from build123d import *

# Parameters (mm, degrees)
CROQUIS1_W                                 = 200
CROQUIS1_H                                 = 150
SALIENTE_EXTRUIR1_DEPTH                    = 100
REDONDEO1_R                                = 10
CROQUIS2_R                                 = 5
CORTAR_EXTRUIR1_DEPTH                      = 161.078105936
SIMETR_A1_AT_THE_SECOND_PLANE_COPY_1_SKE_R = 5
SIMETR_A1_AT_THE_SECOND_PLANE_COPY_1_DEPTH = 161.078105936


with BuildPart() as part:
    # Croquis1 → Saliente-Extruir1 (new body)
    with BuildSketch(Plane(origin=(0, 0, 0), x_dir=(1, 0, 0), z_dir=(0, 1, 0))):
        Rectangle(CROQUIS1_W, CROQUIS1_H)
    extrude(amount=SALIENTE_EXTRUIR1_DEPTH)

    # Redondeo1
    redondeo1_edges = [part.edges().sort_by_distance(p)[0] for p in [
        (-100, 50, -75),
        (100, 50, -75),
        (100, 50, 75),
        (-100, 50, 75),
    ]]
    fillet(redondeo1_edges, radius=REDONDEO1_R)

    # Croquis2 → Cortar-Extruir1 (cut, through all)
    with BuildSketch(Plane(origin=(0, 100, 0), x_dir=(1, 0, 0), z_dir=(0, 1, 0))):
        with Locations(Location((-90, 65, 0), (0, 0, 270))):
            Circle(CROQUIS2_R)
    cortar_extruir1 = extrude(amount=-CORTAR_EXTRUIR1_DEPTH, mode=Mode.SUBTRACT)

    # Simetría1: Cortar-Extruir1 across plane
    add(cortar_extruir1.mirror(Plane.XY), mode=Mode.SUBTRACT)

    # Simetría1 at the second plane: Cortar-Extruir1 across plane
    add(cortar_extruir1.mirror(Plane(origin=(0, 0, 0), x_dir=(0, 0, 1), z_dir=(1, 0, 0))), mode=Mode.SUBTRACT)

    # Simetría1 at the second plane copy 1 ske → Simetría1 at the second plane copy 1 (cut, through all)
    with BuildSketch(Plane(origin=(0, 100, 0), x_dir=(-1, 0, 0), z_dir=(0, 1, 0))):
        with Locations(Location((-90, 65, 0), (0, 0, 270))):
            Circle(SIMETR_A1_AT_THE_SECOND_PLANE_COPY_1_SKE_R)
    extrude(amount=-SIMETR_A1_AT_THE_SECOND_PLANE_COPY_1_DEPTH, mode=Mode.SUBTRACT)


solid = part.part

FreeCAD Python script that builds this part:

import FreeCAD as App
import Part
import Sketcher

V = App.Vector


def edges_at(feature, points):
    """Names of the edges that pass closest to the given points."""
    edges = feature.Shape.Edges
    near = lambda p: min(range(len(edges)), key=lambda i: edges[i].distToShape(Part.Vertex(*p))[0])
    return sorted({f"Edge{near(p) + 1}" for p in points})


def add_polygon(sketch, points):
    """Adds a closed chain of lines whose ends are joined by coincident constraints."""
    first, n = sketch.GeometryCount, len(points)
    for a, b in zip(points, points[1:] + points[:1]):
        sketch.addGeometry(Part.LineSegment(App.Vector(*a, 0), App.Vector(*b, 0)), False)
    for i in range(n):
        sketch.addConstraint(Sketcher.Constraint("Coincident", first + i, 2, first + (i + 1) % n, 1))

doc = App.newDocument("Part")
body = doc.addObject("PartDesign::Body", "Body")

# Sketch on XZ plane
sketch1 = body.newObject("Sketcher::SketchObject", "Sketch")
sketch1.AttachmentSupport = (doc.getObject("XZ_Plane"), [""])
sketch1.MapMode = "FlatFace"
add_polygon(sketch1, [(-100, -75), (-100, 75), (100, 75), (100, -75)])  # lines 0-3
sketch1.addConstraint(Sketcher.Constraint("Vertical", 0))
sketch1.addConstraint(Sketcher.Constraint("Horizontal", 1))
sketch1.addConstraint(Sketcher.Constraint("Vertical", 2))
sketch1.addConstraint(Sketcher.Constraint("Horizontal", 3))
sketch1.addConstraint(Sketcher.Constraint("Symmetric", 0, 2, 2, 2, -1, 1))
sketch1.addConstraint(Sketcher.Constraint("DistanceX", 1, 1, 1, 2, 200.0))
sketch1.addConstraint(Sketcher.Constraint("DistanceY", 0, 1, 0, 2, 150.0))
pad1 = body.newObject("PartDesign::Pad", "Pad")
pad1.Profile = sketch1
pad1.Length = 100
pad1.Reversed = True
doc.recompute()

fillet = body.newObject("PartDesign::Fillet", "Fillet")
fillet.Base = (pad1, edges_at(pad1, [
    (-100, 50, -75),
    (100, 50, -75),
    (100, 50, 75),
    (-100, 50, 75),
]))
fillet.Radius = 10

# Sketch on XZ plane
sketch2 = body.newObject("Sketcher::SketchObject", "Sketch001")
sketch2.AttachmentSupport = (doc.getObject("XZ_Plane"), [""])
sketch2.MapMode = "FlatFace"
sketch2.AttachmentOffset = App.Placement(V(0, 0, -100), App.Rotation())
sketch2.addGeometry(Part.Circle(V(-90, -65, 0), V(0, 0, 1), 5), False)
sketch2.addConstraint(Sketcher.Constraint("Diameter", 0, 10.0))
sketch2.addConstraint(Sketcher.Constraint("DistanceX", 0, 3, -1, 1, 90.0))
sketch2.addConstraint(Sketcher.Constraint("DistanceY", 0, 3, -1, 1, 65.0))
pocket1 = body.newObject("PartDesign::Pocket", "Pocket")
pocket1.Profile = sketch2
pocket1.Type = "ThroughAll"
pocket1.Reversed = True
doc.recompute()

mirrored = body.newObject("PartDesign::Mirrored", "Mirrored")
mirrored.Originals = [pocket1]
mirrored.MirrorPlane = (doc.getObject("XY_Plane"), [""])
body.Tip = mirrored
doc.recompute()

mirrored2 = body.newObject("PartDesign::Mirrored", "Mirrored001")
mirrored2.Originals = [pocket1]
mirrored2.MirrorPlane = (doc.getObject("YZ_Plane"), [""])
body.Tip = mirrored2

# Sketch on XZ plane
sketch3 = body.newObject("Sketcher::SketchObject", "Sketch002")
sketch3.AttachmentSupport = (doc.getObject("XZ_Plane"), [""])
sketch3.MapMode = "FlatFace"
sketch3.AttachmentOffset = App.Placement(V(0, 0, -100), App.Rotation())
sketch3.addGeometry(Part.Circle(V(90, 65, 0), V(0, 0, 1), 5), False)
sketch3.addConstraint(Sketcher.Constraint("Diameter", 0, 10.0))
sketch3.addConstraint(Sketcher.Constraint("DistanceX", -1, 1, 0, 3, 90.0))
sketch3.addConstraint(Sketcher.Constraint("DistanceY", -1, 1, 0, 3, 65.0))
pocket2 = body.newObject("PartDesign::Pocket", "Pocket001")
pocket2.Profile = sketch3
pocket2.Type = "ThroughAll"
pocket2.Reversed = True

doc.recompute()
